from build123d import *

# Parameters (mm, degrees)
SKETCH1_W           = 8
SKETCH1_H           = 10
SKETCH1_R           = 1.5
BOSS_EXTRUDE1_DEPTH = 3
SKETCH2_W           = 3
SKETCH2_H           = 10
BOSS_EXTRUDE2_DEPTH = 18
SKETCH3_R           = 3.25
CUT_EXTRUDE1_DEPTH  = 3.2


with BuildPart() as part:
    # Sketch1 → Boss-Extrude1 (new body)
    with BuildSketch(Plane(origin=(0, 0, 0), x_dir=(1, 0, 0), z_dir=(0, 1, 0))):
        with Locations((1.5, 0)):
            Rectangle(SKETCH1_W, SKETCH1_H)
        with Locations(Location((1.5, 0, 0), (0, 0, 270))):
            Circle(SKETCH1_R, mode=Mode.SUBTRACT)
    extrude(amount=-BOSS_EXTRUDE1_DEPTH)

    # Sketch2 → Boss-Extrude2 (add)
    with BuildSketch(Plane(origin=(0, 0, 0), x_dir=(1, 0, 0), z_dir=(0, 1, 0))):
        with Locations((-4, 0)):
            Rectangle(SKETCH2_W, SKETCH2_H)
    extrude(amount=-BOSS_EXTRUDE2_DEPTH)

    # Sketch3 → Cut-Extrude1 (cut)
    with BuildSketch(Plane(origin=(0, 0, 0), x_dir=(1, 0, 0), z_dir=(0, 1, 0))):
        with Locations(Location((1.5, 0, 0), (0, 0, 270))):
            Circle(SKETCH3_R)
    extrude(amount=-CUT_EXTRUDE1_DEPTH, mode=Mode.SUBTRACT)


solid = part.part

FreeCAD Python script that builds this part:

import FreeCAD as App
import Part
import Sketcher

V = App.Vector

doc = App.newDocument("Part")
params = doc.addObject("Spreadsheet::Sheet", "Params")
for row, (alias, value) in enumerate([
    ("sketch1_diameter", "3 mm"),
    ("sketch1_width", "8 mm"),
    ("sketch1_height", "10 mm"),
    ("pad1_length", "3 mm"),
    ("sketch2_width", "3 mm"),
    ("sketch2_height", "10 mm"),
    ("pad2_length", "18 mm"),
    ("sketch3_diameter", "6.5 mm"),
    ("pocket1_length", "3.2 mm"),
], start=1):
    params.set(f"A{row}", alias)
    params.set(f"B{row}", "=" + value)
    params.setAlias(f"B{row}", alias)

body = doc.addObject("PartDesign::Body", "Body")

sketch1 = body.newObject("Sketcher::SketchObject", "Sketch")
sketch1.AttachmentSupport = (doc.getObject("XZ_Plane"), [""])
sketch1.MapMode = "FlatFace"
sketch1.addGeometry(Part.LineSegment(V(-2.5, -5, 0), V(-2.5, 5, 0)), False)
sketch1.addGeometry(Part.LineSegment(V(-2.5, 5, 0), V(5.5, 5, 0)), False)
sketch1.addGeometry(Part.LineSegment(V(5.5, 5, 0), V(5.5, -5, 0)), False)
sketch1.addGeometry(Part.LineSegment(V(5.5, -5, 0), V(-2.5, -5, 0)), False)
sketch1.addGeometry(Part.Circle(V(1.5, 0, 0), V(0, 0, 1), 1.5), False)
sketch1.addConstraint(Sketcher.Constraint("Coincident", 0, 2, 1, 1))
sketch1.addConstraint(Sketcher.Constraint("Coincident", 1, 2, 2, 1))
sketch1.addConstraint(Sketcher.Constraint("Coincident", 2, 2, 3, 1))
sketch1.addConstraint(Sketcher.Constraint("Coincident", 3, 2, 0, 1))
sketch1.addConstraint(Sketcher.Constraint("Vertical", 0))
sketch1.addConstraint(Sketcher.Constraint("Horizontal", 1))
sketch1.addConstraint(Sketcher.Constraint("Vertical", 2))
sketch1.addConstraint(Sketcher.Constraint("Horizontal", 3))
sketch1.addConstraint(Sketcher.Constraint("PointOnObject", 4, 3, -1))
sketch1.addConstraint(Sketcher.Constraint("Diameter", 4, 3.0))
sketch1.addConstraint(Sketcher.Constraint("DistanceX", 1, 1, 1, 2, 8.0))
sketch1.addConstraint(Sketcher.Constraint("DistanceY", 0, 1, 0, 2, 10.0))
sketch1.addConstraint(Sketcher.Constraint("DistanceY", -1, 1, 0, 2, 5.0))
sketch1.addConstraint(Sketcher.Constraint("DistanceX", 0, 2, 4, 3, 4.0))
sketch1.addConstraint(Sketcher.Constraint("DistanceX", -1, 1, 4, 3, 1.5))
sketch1.setExpression("Constraints[9]", "Params.sketch1_diameter")
sketch1.setExpression("Constraints[10]", "Params.sketch1_width")
sketch1.setExpression("Constraints[11]", "Params.sketch1_height")
pad1 = body.newObject("PartDesign::Pad", "Pad")
pad1.Profile = sketch1
pad1.setExpression("Length", "Params.pad1_length")

sketch2 = body.newObject("Sketcher::SketchObject", "Sketch001")
sketch2.AttachmentSupport = (doc.getObject("XZ_Plane"), [""])
sketch2.MapMode = "FlatFace"
sketch2.addGeometry(Part.LineSegment(V(-5.5, -5, 0), V(-5.5, 5, 0)), False)
sketch2.addGeometry(Part.LineSegment(V(-5.5, 5, 0), V(-2.5, 5, 0)), False)
sketch2.addGeometry(Part.LineSegment(V(-2.5, 5, 0), V(-2.5, -5, 0)), False)
sketch2.addGeometry(Part.LineSegment(V(-2.5, -5, 0), V(-5.5, -5, 0)), False)
sketch2.addConstraint(Sketcher.Constraint("Coincident", 0, 2, 1, 1))
sketch2.addConstraint(Sketcher.Constraint("Coincident", 1, 2, 2, 1))
sketch2.addConstraint(Sketcher.Constraint("Coincident", 2, 2, 3, 1))
sketch2.addConstraint(Sketcher.Constraint("Coincident", 3, 2, 0, 1))
sketch2.addConstraint(Sketcher.Constraint("Vertical", 0))
sketch2.addConstraint(Sketcher.Constraint("Horizontal", 1))
sketch2.addConstraint(Sketcher.Constraint("Vertical", 2))
sketch2.addConstraint(Sketcher.Constraint("Horizontal", 3))
sketch2.addConstraint(Sketcher.Constraint("DistanceX", 1, 1, 1, 2, 3.0))
sketch2.addConstraint(Sketcher.Constraint("DistanceY", 0, 1, 0, 2, 10.0))
sketch2.addConstraint(Sketcher.Constraint("DistanceY", -1, 1, 0, 2, 5.0))
sketch2.addConstraint(Sketcher.Constraint("DistanceX", 0, 2, -1, 1, 5.5))
sketch2.setExpression("Constraints[8]", "Params.sketch2_width")
sketch2.setExpression("Constraints[9]", "Params.sketch2_height")
pad2 = body.newObject("PartDesign::Pad", "Pad001")
pad2.Profile = sketch2
pad2.setExpression("Length", "Params.pad2_length")

sketch3 = body.newObject("Sketcher::SketchObject", "Sketch002")
sketch3.AttachmentSupport = (doc.getObject("XZ_Plane"), [""])
sketch3.MapMode = "FlatFace"
sketch3.addGeometry(Part.Circle(V(1.5, 0, 0), V(0, 0, 1), 3.2), False)
sketch3.addConstraint(Sketcher.Constraint("PointOnObject", 0, 3, -1))
sketch3.addConstraint(Sketcher.Constraint("Diameter", 0, 6.5))
sketch3.addConstraint(Sketcher.Constraint("DistanceX", -1, 1, 0, 3, 1.5))
sketch3.setExpression("Constraints[1]", "Params.sketch3_diameter")
pocket1 = body.newObject("PartDesign::Pocket", "Pocket")
pocket1.Profile = sketch3
pocket1.setExpression("Length", "Params.pocket1_length")
pocket1.Reversed = True

doc.recompute()
